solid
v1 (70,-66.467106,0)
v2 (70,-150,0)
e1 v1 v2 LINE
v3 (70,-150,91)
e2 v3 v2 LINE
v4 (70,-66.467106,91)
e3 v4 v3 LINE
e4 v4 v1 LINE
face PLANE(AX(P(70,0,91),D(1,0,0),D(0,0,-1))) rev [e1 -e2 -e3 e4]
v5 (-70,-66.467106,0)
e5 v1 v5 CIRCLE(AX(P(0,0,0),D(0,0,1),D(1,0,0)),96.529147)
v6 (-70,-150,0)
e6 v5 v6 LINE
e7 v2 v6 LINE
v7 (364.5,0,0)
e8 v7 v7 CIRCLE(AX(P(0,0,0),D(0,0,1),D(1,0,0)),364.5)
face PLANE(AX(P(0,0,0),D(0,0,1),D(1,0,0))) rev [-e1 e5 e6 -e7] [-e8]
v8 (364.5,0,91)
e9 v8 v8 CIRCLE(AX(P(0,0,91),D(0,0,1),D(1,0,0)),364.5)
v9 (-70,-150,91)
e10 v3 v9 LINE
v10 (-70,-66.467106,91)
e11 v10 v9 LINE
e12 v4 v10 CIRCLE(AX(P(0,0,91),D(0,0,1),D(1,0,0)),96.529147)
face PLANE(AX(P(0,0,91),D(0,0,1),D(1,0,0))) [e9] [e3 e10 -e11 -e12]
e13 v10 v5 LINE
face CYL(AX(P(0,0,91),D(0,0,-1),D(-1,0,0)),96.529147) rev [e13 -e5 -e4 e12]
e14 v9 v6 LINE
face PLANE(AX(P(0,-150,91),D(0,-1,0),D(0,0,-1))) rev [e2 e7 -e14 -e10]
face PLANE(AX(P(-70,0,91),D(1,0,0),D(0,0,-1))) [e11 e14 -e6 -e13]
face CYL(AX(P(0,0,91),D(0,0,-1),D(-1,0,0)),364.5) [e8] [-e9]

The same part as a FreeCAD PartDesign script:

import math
import FreeCAD as App
import Part
import Sketcher
from FreeCAD import Vector
Q = App.Units.Quantity

doc = App.newDocument("Part")
body = doc.addObject("PartDesign::Body", "Body")

# Sketch on XY plane
sketch1 = doc.addObject("Sketcher::SketchObject", "Sketch")
body.addObject(sketch1)
sketch1.AttachmentSupport = (doc.XY_Plane, [""])
sketch1.MapMode = "FlatFace"
sketch1.addGeometry(Part.ArcOfCircle(Part.Circle(Vector(0, 0, 0), Vector(0, 0, 1), 364.5), math.radians(0), math.radians(270)), False)
sketch1.addGeometry(Part.ArcOfCircle(Part.Circle(Vector(0, 0, 0), Vector(0, 0, 1), 364.5), math.radians(-90), math.radians(0)), False)
sketch1.addGeometry(Part.LineSegment(Vector(70, -66.467106, 0), Vector(70, -150, 0)), False)
sketch1.addGeometry(Part.LineSegment(Vector(70, -150, 0), Vector(-70, -150, 0)), False)
sketch1.addGeometry(Part.LineSegment(Vector(-70, -150, 0), Vector(-70, -66.467106, 0)), False)
sketch1.addGeometry(Part.ArcOfCircle(Part.Circle(Vector(0, 0, 0), Vector(0, 0, 1), 96.529147), math.radians(0), math.radians(223.517044)), False)
sketch1.addGeometry(Part.ArcOfCircle(Part.Circle(Vector(0, 0, 0), Vector(0, 0, 1), 96.529147), math.radians(-43.517044), math.radians(0)), False)
sketch1.addConstraint(Sketcher.Constraint("Tangent", 0, 1, 1, 2))
sketch1.addConstraint(Sketcher.Constraint("Coincident", 1, 1, 0, 2))
sketch1.addConstraint(Sketcher.Constraint("Coincident", 2, 2, 3, 1))
sketch1.addConstraint(Sketcher.Constraint("Coincident", 3, 2, 4, 1))
sketch1.addConstraint(Sketcher.Constraint("Coincident", 4, 2, 5, 2))
sketch1.addConstraint(Sketcher.Constraint("Tangent", 5, 1, 6, 2))
sketch1.addConstraint(Sketcher.Constraint("Coincident", 6, 1, 2, 1))
sketch1.addConstraint(Sketcher.Constraint("Vertical", 2))
sketch1.addConstraint(Sketcher.Constraint("Horizontal", 3))
sketch1.addConstraint(Sketcher.Constraint("Vertical", 4))
sketch1.addConstraint(Sketcher.Constraint("Coincident", 0, 3, -1, 1))
sketch1.addConstraint(Sketcher.Constraint("Coincident", 5, 3, -1, 1))
sketch1.addConstraint(Sketcher.Constraint("Equal", 5, 6))
sketch1.addConstraint(Sketcher.Constraint("PointOnObject", 0, 1, -1))
sketch1.addConstraint(Sketcher.Constraint("PointOnObject", 1, 1, -2))
sketch1.addConstraint(Sketcher.Constraint("PointOnObject", 5, 1, -1))
sketch1.addConstraint(Sketcher.Constraint("Horizontal", 4, 2, 6, 1))
sketch1.addConstraint(Sketcher.Constraint("Radius", 0, Q("364.5 mm")))
sketch1.addConstraint(Sketcher.Constraint("DistanceX", 3, 2, 3, 1, Q("140 mm")))
sketch1.addConstraint(Sketcher.Constraint("DistanceY", 2, 2, -1, 1, Q("150 mm")))
sketch1.addConstraint(Sketcher.Constraint("Radius", 5, Q("96.529147 mm")))
pad1 = doc.addObject("PartDesign::Pad", "Pad")
body.addObject(pad1)
pad1.Profile = sketch1
pad1.Length = 91

doc.recompute()
